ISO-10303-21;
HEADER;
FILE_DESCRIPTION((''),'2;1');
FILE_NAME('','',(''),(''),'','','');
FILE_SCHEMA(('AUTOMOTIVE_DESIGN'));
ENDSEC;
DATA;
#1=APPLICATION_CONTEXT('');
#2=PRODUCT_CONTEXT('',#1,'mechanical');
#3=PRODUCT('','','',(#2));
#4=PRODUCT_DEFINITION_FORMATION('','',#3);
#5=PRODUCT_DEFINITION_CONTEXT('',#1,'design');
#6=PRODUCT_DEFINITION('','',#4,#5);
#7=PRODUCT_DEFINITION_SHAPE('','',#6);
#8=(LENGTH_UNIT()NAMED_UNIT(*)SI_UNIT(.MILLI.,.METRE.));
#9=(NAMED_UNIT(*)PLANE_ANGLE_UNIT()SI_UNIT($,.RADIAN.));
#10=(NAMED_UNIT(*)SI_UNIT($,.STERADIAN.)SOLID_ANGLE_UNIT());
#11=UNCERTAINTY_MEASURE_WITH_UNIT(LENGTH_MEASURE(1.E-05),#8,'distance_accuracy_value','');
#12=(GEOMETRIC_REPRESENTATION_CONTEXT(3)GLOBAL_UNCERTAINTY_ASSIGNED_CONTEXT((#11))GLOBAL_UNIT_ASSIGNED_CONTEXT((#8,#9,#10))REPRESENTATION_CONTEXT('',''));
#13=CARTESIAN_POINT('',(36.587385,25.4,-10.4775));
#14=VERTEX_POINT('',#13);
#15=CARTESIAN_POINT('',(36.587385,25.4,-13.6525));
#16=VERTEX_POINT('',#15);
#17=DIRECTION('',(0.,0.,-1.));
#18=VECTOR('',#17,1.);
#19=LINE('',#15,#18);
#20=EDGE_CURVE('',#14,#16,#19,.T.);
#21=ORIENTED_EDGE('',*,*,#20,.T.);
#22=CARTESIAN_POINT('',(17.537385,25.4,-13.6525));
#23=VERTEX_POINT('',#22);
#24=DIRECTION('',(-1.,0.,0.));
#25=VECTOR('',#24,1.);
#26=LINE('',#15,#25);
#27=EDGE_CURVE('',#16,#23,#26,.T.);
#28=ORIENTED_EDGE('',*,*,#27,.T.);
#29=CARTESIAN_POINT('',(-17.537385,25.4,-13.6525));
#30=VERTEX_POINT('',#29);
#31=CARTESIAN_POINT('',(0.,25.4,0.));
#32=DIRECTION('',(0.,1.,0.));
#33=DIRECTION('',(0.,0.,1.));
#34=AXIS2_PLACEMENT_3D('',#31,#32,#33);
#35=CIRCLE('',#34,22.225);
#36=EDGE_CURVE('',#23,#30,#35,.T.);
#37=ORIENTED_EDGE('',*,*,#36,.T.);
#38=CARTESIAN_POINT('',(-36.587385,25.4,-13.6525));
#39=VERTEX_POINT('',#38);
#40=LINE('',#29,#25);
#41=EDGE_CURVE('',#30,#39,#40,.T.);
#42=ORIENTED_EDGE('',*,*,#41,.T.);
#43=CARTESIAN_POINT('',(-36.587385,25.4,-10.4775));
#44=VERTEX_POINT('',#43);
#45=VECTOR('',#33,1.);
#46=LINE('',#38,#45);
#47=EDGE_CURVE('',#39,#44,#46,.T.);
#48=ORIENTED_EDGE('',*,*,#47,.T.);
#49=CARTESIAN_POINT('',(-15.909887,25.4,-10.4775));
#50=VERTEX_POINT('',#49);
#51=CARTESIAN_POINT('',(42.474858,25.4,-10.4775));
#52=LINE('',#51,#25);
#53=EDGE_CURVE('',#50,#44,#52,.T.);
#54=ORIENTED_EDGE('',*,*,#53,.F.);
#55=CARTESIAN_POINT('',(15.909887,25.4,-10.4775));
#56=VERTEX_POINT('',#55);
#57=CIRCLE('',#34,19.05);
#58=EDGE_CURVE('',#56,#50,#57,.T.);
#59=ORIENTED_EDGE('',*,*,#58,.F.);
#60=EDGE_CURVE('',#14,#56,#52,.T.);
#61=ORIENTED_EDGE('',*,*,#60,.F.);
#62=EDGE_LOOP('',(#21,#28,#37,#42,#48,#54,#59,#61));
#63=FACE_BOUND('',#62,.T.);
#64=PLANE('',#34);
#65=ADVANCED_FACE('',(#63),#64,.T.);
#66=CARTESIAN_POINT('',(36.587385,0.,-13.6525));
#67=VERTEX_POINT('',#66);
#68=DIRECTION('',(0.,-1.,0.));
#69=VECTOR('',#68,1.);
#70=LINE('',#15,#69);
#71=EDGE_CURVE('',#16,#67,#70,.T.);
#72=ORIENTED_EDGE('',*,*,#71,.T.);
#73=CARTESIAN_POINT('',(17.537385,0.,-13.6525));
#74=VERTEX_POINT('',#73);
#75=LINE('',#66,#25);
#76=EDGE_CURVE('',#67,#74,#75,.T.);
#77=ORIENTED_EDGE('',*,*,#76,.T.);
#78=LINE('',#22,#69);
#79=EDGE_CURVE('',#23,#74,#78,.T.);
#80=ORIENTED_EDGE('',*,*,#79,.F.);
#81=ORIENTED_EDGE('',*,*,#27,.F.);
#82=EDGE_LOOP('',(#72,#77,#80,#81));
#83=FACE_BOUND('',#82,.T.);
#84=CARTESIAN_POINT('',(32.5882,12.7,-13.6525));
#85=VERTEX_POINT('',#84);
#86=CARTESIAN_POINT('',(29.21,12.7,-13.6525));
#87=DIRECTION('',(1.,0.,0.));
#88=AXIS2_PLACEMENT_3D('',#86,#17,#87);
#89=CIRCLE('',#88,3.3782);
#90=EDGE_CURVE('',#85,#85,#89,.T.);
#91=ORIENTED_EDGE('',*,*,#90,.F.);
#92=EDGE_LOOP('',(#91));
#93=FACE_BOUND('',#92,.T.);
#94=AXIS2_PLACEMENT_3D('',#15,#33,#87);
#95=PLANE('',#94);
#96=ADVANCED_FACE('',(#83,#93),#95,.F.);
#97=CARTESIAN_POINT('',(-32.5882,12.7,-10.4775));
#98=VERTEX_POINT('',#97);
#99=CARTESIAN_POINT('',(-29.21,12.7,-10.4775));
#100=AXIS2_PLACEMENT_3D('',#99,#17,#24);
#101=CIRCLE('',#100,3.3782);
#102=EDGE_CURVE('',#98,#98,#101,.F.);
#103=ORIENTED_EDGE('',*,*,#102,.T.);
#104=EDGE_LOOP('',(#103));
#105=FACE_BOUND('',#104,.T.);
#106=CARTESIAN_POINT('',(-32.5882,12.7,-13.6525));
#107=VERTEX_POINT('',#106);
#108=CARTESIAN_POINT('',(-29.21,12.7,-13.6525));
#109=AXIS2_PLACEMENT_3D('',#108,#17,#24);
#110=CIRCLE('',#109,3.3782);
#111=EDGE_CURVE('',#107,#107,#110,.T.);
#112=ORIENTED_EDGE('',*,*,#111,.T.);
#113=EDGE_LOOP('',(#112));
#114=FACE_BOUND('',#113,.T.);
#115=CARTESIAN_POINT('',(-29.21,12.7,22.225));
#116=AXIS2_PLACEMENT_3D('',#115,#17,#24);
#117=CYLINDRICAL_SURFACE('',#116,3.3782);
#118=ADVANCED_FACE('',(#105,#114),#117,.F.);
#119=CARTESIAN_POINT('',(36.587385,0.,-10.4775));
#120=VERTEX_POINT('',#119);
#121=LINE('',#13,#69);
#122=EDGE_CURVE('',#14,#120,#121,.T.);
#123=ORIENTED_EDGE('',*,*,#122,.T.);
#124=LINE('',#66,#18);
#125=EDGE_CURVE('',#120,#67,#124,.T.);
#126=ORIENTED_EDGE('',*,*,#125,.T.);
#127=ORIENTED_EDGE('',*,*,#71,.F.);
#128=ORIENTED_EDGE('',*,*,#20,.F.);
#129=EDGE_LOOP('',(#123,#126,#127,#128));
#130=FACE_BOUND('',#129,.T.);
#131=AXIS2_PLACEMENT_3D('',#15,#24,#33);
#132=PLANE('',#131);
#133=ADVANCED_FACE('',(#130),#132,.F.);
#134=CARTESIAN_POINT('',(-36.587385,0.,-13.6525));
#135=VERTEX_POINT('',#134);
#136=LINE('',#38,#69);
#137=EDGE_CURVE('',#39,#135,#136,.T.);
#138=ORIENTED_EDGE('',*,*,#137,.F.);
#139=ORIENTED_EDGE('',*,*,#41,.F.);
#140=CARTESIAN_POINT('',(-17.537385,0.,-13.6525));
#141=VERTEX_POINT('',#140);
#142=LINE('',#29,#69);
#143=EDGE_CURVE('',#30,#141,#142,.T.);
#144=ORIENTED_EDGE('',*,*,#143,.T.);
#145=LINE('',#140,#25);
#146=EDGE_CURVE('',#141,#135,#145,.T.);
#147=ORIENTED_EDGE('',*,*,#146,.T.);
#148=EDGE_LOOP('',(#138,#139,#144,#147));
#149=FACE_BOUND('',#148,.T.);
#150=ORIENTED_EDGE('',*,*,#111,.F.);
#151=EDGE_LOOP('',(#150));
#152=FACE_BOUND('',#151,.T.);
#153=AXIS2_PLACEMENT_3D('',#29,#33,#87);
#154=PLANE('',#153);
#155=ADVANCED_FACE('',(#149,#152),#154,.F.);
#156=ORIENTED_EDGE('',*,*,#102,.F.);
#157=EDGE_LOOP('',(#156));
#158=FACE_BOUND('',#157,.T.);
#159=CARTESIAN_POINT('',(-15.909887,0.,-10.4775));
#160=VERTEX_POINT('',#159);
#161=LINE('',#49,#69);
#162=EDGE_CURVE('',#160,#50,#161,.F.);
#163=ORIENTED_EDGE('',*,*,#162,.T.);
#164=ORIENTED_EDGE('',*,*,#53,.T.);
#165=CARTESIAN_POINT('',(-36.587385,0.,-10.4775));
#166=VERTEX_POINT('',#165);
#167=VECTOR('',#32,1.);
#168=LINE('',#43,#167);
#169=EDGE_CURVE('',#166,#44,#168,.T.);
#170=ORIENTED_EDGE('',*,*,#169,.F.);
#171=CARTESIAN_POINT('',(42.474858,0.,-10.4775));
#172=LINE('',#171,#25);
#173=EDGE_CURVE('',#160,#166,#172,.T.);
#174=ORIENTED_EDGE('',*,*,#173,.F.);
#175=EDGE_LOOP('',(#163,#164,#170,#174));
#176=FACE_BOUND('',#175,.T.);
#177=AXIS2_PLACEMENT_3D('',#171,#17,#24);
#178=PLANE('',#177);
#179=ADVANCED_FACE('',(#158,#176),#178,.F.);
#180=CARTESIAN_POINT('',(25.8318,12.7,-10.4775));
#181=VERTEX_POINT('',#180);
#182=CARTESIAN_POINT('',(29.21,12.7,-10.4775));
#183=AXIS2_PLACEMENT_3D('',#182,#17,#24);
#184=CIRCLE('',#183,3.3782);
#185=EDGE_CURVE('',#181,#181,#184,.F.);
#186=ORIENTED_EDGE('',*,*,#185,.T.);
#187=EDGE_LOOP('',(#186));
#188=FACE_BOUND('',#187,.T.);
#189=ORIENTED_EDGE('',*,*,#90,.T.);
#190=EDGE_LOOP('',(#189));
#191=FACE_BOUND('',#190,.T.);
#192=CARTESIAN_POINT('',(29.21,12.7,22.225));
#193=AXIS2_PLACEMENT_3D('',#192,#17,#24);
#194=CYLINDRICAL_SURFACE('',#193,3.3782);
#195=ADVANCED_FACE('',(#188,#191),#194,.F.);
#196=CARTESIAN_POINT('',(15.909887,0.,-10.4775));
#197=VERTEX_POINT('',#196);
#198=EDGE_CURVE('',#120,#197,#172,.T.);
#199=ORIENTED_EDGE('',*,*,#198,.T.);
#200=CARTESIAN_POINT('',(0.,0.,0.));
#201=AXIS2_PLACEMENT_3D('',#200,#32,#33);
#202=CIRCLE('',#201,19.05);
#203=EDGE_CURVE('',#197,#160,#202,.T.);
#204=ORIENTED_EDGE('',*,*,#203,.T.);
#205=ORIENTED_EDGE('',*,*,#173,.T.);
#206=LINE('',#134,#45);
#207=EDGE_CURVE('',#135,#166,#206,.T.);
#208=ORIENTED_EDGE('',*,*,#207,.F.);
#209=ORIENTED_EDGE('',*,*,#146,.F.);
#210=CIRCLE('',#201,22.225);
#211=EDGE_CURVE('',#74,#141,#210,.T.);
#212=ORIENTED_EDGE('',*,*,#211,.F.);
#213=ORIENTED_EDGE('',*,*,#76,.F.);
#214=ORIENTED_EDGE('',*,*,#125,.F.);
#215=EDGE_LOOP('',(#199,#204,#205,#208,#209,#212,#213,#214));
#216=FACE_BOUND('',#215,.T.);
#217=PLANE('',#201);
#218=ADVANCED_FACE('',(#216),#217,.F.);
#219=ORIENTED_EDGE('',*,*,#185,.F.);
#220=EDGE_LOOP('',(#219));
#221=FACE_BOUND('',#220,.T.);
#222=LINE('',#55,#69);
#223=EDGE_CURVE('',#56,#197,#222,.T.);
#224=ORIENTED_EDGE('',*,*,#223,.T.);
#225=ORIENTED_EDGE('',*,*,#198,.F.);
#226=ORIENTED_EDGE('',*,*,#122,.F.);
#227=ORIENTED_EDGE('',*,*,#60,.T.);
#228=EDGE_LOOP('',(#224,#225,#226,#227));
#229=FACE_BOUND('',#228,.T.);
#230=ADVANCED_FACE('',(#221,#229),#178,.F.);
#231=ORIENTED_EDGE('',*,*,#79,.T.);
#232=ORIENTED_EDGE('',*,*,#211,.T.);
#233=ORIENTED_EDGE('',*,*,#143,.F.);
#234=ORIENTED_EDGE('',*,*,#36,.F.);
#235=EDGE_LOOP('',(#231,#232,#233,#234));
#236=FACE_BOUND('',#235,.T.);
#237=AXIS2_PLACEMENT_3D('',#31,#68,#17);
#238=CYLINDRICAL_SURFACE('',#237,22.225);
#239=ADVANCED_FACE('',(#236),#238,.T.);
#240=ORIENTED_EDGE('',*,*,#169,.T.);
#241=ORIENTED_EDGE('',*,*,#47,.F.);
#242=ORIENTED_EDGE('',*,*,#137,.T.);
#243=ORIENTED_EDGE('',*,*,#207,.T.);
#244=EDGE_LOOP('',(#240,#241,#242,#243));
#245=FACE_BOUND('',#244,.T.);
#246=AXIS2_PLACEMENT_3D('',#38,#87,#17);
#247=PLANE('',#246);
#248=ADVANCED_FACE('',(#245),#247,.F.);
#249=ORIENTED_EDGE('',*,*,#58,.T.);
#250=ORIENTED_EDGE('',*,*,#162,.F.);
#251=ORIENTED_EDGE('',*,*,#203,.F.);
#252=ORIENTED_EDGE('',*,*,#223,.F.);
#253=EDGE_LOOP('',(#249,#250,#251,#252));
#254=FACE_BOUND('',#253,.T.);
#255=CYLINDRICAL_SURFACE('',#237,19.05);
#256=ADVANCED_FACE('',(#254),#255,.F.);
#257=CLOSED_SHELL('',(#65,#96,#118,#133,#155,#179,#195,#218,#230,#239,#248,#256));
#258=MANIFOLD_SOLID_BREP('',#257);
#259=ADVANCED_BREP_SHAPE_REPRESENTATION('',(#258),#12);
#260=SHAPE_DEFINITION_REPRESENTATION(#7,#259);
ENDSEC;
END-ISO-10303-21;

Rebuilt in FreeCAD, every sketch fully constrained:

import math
import FreeCAD as App
import Part
import Sketcher

V = App.Vector
Q = App.Units.Quantity

doc = App.newDocument("Part")
body = doc.addObject("PartDesign::Body", "Body")

# Sketch on XZ plane
sketch1 = body.newObject("Sketcher::SketchObject", "Sketch")
sketch1.AttachmentSupport = (doc.getObject("XZ_Plane"), [""])
sketch1.MapMode = "FlatFace"
sketch1.addGeometry(Part.LineSegment(V(36.587385, -13.6525, 0), V(17.537385, -13.6525, 0)), False)
sketch1.addGeometry(Part.ArcOfCircle(Part.Circle(V(0, 0, 0), V(0, 0, 1), 22.225), math.radians(-142.099963), math.radians(-37.900037)), False)
sketch1.addGeometry(Part.LineSegment(V(-17.537385, -13.6525, 0), V(-36.587385, -13.6525, 0)), False)
sketch1.addGeometry(Part.LineSegment(V(-36.587385, -13.6525, 0), V(-36.587385, -4.1275, 0)), False)
sketch1.addGeometry(Part.LineSegment(V(-36.587385, -4.1275, 0), V(-21.838369, -4.1275, 0)), False)
sketch1.addGeometry(Part.ArcOfCircle(Part.Circle(V(0, 0, 0), V(0, 0, 1), 22.225), math.radians(-10.70278), math.radians(190.70278)), False)
sketch1.addGeometry(Part.LineSegment(V(21.838369, -4.1275, 0), V(36.587385, -4.1275, 0)), False)
sketch1.addGeometry(Part.LineSegment(V(36.587385, -4.1275, 0), V(36.587385, -13.6525, 0)), False)
sketch1.addGeometry(Part.Circle(V(0, 0, 0), V(0, 0, 1), 19.05), False)
sketch1.addConstraint(Sketcher.Constraint("Coincident", 0, 2, 1, 2))
sketch1.addConstraint(Sketcher.Constraint("Coincident", 1, 1, 2, 1))
sketch1.addConstraint(Sketcher.Constraint("Coincident", 2, 2, 3, 1))
sketch1.addConstraint(Sketcher.Constraint("Coincident", 3, 2, 4, 1))
sketch1.addConstraint(Sketcher.Constraint("Coincident", 4, 2, 5, 2))
sketch1.addConstraint(Sketcher.Constraint("Coincident", 5, 1, 6, 1))
sketch1.addConstraint(Sketcher.Constraint("Coincident", 6, 2, 7, 1))
sketch1.addConstraint(Sketcher.Constraint("Coincident", 7, 2, 0, 1))
sketch1.addConstraint(Sketcher.Constraint("Horizontal", 0))
sketch1.addConstraint(Sketcher.Constraint("Horizontal", 2))
sketch1.addConstraint(Sketcher.Constraint("Vertical", 3))
sketch1.addConstraint(Sketcher.Constraint("Horizontal", 4))
sketch1.addConstraint(Sketcher.Constraint("Horizontal", 6))
sketch1.addConstraint(Sketcher.Constraint("Vertical", 7))
sketch1.addConstraint(Sketcher.Constraint("Coincident", 1, 3, -1, 1))
sketch1.addConstraint(Sketcher.Constraint("Coincident", 5, 3, -1, 1))
sketch1.addConstraint(Sketcher.Constraint("Coincident", 8, 3, -1, 1))
sketch1.addConstraint(Sketcher.Constraint("Equal", 1, 5))
sketch1.addConstraint(Sketcher.Constraint("Symmetric", 3, 2, 6, 2, -2))
sketch1.addConstraint(Sketcher.Constraint("Horizontal", 0, 2, 1, 1))
sketch1.addConstraint(Sketcher.Constraint("Diameter", 8, Q("1.5 in")))
sketch1.addConstraint(Sketcher.Constraint("Radius", 1, Q("0.875 in")))
sketch1.addConstraint(Sketcher.Constraint("DistanceX", 0, 2, 0, 1, Q("0.75 in")))
sketch1.addConstraint(Sketcher.Constraint("DistanceY", 3, 1, 3, 2, Q("0.375 in")))
sketch1.addConstraint(Sketcher.Constraint("DistanceY", 0, 2, -1, 1, Q("0.5375 in")))
pad1 = body.newObject("PartDesign::Pad", "Pad")
pad1.Profile = sketch1
pad1.Length = Q("1 in")
pad1.Reversed = True

# Sketch on XY plane
sketch2 = body.newObject("Sketcher::SketchObject", "Sketch001")
sketch2.AttachmentSupport = (doc.getObject("XY_Plane"), [""])
sketch2.MapMode = "FlatFace"
sketch2.AttachmentOffset = App.Placement(V(0, 0, -0.5375 * 25.4), App.Rotation())
sketch2.addGeometry(Part.Circle(V(-29.21, 12.7, 0), V(0, 0, 1), 3.3782), False)
sketch2.addGeometry(Part.Circle(V(29.21, 12.7, 0), V(0, 0, 1), 3.3782), False)
sketch2.addConstraint(Sketcher.Constraint("Equal", 0, 1))
sketch2.addConstraint(Sketcher.Constraint("Symmetric", 0, 3, 1, 3, -2))
sketch2.addConstraint(Sketcher.Constraint("Diameter", 0, Q("0.266 in")))
sketch2.addConstraint(Sketcher.Constraint("DistanceY", -1, 1, 0, 3, Q("0.5 in")))
sketch2.addConstraint(Sketcher.Constraint("DistanceX", 0, 3, 1, 3, Q("2.3 in")))
pocket1 = body.newObject("PartDesign::Pocket", "Pocket")
pocket1.Profile = sketch2
pocket1.Type = "ThroughAll"
pocket1.Reversed = True

# Sketch on XZ plane
sketch3 = body.newObject("Sketcher::SketchObject", "Sketch002")
sketch3.AttachmentSupport = (doc.getObject("XZ_Plane"), [""])
sketch3.MapMode = "FlatFace"
sketch3.AttachmentOffset = App.Placement(V(0, 0, -1 * 25.4), App.Rotation())
sketch3.addGeometry(Part.LineSegment(V(-42.768139, -10.4775, 0), V(-42.768139, 23.674723, 0)), False)
sketch3.addGeometry(Part.LineSegment(V(-42.768139, 23.674723, 0), V(42.474858, 23.674723, 0)), False)
sketch3.addGeometry(Part.LineSegment(V(42.474858, 23.674723, 0), V(42.474858, -10.4775, 0)), False)
sketch3.addGeometry(Part.LineSegment(V(42.474858, -10.4775, 0), V(-42.768139, -10.4775, 0)), False)
sketch3.addConstraint(Sketcher.Constraint("Coincident", 0, 2, 1, 1))
sketch3.addConstraint(Sketcher.Constraint("Coincident", 1, 2, 2, 1))
sketch3.addConstraint(Sketcher.Constraint("Coincident", 2, 2, 3, 1))
sketch3.addConstraint(Sketcher.Constraint("Coincident", 3, 2, 0, 1))
sketch3.addConstraint(Sketcher.Constraint("Vertical", 0))
sketch3.addConstraint(Sketcher.Constraint("Horizontal", 1))
sketch3.addConstraint(Sketcher.Constraint("Vertical", 2))
sketch3.addConstraint(Sketcher.Constraint("Horizontal", 3))
sketch3.addConstraint(Sketcher.Constraint("DistanceY", 2, 2, -1, 1, Q("0.4125 in")))
sketch3.addConstraint(Sketcher.Constraint("DistanceX", 1, 1, 1, 2, Q("85.242997 mm")))
sketch3.addConstraint(Sketcher.Constraint("DistanceY", 0, 1, 0, 2, Q("34.152223 mm")))
sketch3.addConstraint(Sketcher.Constraint("DistanceX", 0, 2, -1, 1, Q("42.768139 mm")))
pocket2 = body.newObject("PartDesign::Pocket", "Pocket001")
pocket2.Profile = sketch3
pocket2.Type = "ThroughAll"
pocket2.Reversed = True

doc.recompute()
